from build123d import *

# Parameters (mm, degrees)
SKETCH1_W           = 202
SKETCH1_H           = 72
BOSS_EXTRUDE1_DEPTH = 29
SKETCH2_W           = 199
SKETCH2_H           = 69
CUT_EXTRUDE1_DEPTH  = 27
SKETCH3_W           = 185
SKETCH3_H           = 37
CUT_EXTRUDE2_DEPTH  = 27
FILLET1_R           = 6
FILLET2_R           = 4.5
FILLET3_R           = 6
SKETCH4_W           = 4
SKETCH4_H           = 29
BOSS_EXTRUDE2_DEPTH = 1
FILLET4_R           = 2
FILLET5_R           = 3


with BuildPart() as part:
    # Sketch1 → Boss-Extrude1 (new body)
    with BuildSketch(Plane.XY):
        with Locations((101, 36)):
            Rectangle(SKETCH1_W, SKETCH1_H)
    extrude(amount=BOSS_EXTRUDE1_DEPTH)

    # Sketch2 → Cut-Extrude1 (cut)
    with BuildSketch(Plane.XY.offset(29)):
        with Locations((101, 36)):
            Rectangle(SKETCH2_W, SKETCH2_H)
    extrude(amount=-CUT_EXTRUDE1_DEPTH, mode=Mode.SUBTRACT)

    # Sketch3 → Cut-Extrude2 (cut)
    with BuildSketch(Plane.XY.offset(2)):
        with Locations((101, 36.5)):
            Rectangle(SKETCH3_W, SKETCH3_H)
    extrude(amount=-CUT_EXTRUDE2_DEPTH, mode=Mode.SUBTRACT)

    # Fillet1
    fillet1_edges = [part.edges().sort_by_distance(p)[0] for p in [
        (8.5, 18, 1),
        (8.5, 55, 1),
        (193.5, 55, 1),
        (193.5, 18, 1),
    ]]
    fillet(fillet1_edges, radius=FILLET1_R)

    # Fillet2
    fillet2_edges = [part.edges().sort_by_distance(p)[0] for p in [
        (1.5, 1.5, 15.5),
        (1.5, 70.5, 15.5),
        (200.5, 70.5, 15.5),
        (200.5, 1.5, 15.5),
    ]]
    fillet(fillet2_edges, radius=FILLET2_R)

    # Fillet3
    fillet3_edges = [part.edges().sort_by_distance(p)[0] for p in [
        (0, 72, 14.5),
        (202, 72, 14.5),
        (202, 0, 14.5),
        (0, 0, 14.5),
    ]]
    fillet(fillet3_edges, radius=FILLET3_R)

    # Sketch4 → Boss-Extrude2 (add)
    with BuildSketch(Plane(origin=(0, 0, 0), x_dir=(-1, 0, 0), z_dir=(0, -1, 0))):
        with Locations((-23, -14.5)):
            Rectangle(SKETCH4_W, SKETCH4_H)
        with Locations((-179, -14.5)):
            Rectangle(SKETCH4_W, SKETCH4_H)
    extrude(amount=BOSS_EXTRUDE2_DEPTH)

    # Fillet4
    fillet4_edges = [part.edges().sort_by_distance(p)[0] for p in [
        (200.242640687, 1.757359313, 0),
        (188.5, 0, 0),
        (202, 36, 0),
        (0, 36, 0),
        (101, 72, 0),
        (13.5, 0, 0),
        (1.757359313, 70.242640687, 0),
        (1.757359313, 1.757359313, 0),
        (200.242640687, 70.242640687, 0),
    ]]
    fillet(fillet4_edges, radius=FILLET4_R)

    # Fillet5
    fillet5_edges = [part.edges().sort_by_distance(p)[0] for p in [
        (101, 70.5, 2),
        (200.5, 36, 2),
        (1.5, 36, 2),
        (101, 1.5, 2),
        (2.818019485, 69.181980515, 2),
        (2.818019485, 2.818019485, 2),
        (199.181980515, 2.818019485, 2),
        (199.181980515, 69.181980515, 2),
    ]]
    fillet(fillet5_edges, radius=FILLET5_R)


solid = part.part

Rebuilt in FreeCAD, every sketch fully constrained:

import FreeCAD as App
import Part
import Sketcher
from FreeCAD import Vector
Q = App.Units.Quantity


def edges_at(feature, points):
    """Names of the edges that pass closest to the given points."""
    edges = feature.Shape.Edges
    near = lambda p: min(range(len(edges)), key=lambda i: edges[i].distToShape(Part.Vertex(*p))[0])
    return sorted({f"Edge{near(p) + 1}" for p in points})

doc = App.newDocument("Part")
body = doc.addObject("PartDesign::Body", "Body")

sketch1 = doc.addObject("Sketcher::SketchObject", "Sketch")
body.addObject(sketch1)
sketch1.AttachmentSupport = (doc.XY_Plane, [""])
sketch1.MapMode = "FlatFace"
sketch1.addGeometry(Part.LineSegment(Vector(0, 72, 0), Vector(0, 0, 0)), False)
sketch1.addGeometry(Part.LineSegment(Vector(0, 0, 0), Vector(202, 0, 0)), False)
sketch1.addGeometry(Part.LineSegment(Vector(202, 0, 0), Vector(202, 72, 0)), False)
sketch1.addGeometry(Part.LineSegment(Vector(202, 72, 0), Vector(0, 72, 0)), False)
sketch1.addConstraint(Sketcher.Constraint("Coincident", 0, 2, 1, 1))
sketch1.addConstraint(Sketcher.Constraint("Coincident", 1, 2, 2, 1))
sketch1.addConstraint(Sketcher.Constraint("Coincident", 2, 2, 3, 1))
sketch1.addConstraint(Sketcher.Constraint("Coincident", 3, 2, 0, 1))
sketch1.addConstraint(Sketcher.Constraint("Vertical", 0))
sketch1.addConstraint(Sketcher.Constraint("Horizontal", 1))
sketch1.addConstraint(Sketcher.Constraint("Vertical", 2))
sketch1.addConstraint(Sketcher.Constraint("Horizontal", 3))
sketch1.addConstraint(Sketcher.Constraint("Coincident", 0, 2, -1, 1))
sketch1.addConstraint(Sketcher.Constraint("DistanceX", 1, 1, 1, 2, Q("202 mm")))
sketch1.addConstraint(Sketcher.Constraint("DistanceY", 0, 2, 0, 1, Q("72 mm")))
pad1 = doc.addObject("PartDesign::Pad", "Pad")
body.addObject(pad1)
pad1.Profile = sketch1
pad1.Length = 29

sketch2 = doc.addObject("Sketcher::SketchObject", "Sketch001")
body.addObject(sketch2)
sketch2.AttachmentSupport = (doc.XY_Plane, [""])
sketch2.MapMode = "FlatFace"
sketch2.AttachmentOffset = App.Placement(Vector(0, 0, 29), App.Rotation())
sketch2.addGeometry(Part.LineSegment(Vector(1.5, 70.5, 0), Vector(1.5, 1.5, 0)), False)
sketch2.addGeometry(Part.LineSegment(Vector(1.5, 1.5, 0), Vector(200.5, 1.5, 0)), False)
sketch2.addGeometry(Part.LineSegment(Vector(200.5, 1.5, 0), Vector(200.5, 70.5, 0)), False)
sketch2.addGeometry(Part.LineSegment(Vector(200.5, 70.5, 0), Vector(1.5, 70.5, 0)), False)
sketch2.addConstraint(Sketcher.Constraint("Coincident", 0, 2, 1, 1))
sketch2.addConstraint(Sketcher.Constraint("Coincident", 1, 2, 2, 1))
sketch2.addConstraint(Sketcher.Constraint("Coincident", 2, 2, 3, 1))
sketch2.addConstraint(Sketcher.Constraint("Coincident", 3, 2, 0, 1))
sketch2.addConstraint(Sketcher.Constraint("Vertical", 0))
sketch2.addConstraint(Sketcher.Constraint("Horizontal", 1))
sketch2.addConstraint(Sketcher.Constraint("Vertical", 2))
sketch2.addConstraint(Sketcher.Constraint("Horizontal", 3))
sketch2.addConstraint(Sketcher.Constraint("DistanceX", 1, 1, 1, 2, Q("199 mm")))
sketch2.addConstraint(Sketcher.Constraint("DistanceY", 0, 2, 0, 1, Q("69 mm")))
sketch2.addConstraint(Sketcher.Constraint("DistanceX", -1, 1, 0, 2, Q("1.5 mm")))
sketch2.addConstraint(Sketcher.Constraint("DistanceY", -1, 1, 0, 2, Q("1.5 mm")))
pocket1 = doc.addObject("PartDesign::Pocket", "Pocket")
body.addObject(pocket1)
pocket1.Profile = sketch2
pocket1.Length = 27

sketch3 = doc.addObject("Sketcher::SketchObject", "Sketch002")
body.addObject(sketch3)
sketch3.AttachmentSupport = (doc.XY_Plane, [""])
sketch3.MapMode = "FlatFace"
sketch3.AttachmentOffset = App.Placement(Vector(0, 0, 2), App.Rotation())
sketch3.addGeometry(Part.LineSegment(Vector(8.5, 55, 0), Vector(8.5, 18, 0)), False)
sketch3.addGeometry(Part.LineSegment(Vector(8.5, 18, 0), Vector(193.5, 18, 0)), False)
sketch3.addGeometry(Part.LineSegment(Vector(193.5, 18, 0), Vector(193.5, 55, 0)), False)
sketch3.addGeometry(Part.LineSegment(Vector(193.5, 55, 0), Vector(8.5, 55, 0)), False)
sketch3.addConstraint(Sketcher.Constraint("Coincident", 0, 2, 1, 1))
sketch3.addConstraint(Sketcher.Constraint("Coincident", 1, 2, 2, 1))
sketch3.addConstraint(Sketcher.Constraint("Coincident", 2, 2, 3, 1))
sketch3.addConstraint(Sketcher.Constraint("Coincident", 3, 2, 0, 1))
sketch3.addConstraint(Sketcher.Constraint("Vertical", 0))
sketch3.addConstraint(Sketcher.Constraint("Horizontal", 1))
sketch3.addConstraint(Sketcher.Constraint("Vertical", 2))
sketch3.addConstraint(Sketcher.Constraint("Horizontal", 3))
sketch3.addConstraint(Sketcher.Constraint("DistanceX", 1, 1, 1, 2, Q("185 mm")))
sketch3.addConstraint(Sketcher.Constraint("DistanceY", 0, 2, 0, 1, Q("37 mm")))
sketch3.addConstraint(Sketcher.Constraint("DistanceY", -1, 1, 0, 2, Q("18 mm")))
sketch3.addConstraint(Sketcher.Constraint("DistanceX", -1, 1, 0, 2, Q("8.5 mm")))
pocket2 = doc.addObject("PartDesign::Pocket", "Pocket001")
body.addObject(pocket2)
pocket2.Profile = sketch3
pocket2.Length = 27
doc.recompute()

fillet = doc.addObject("PartDesign::Fillet", "Fillet")
body.addObject(fillet)
fillet.Base = (pocket2, edges_at(pocket2, [
    (8.5, 18, 1),
    (8.5, 55, 1),
    (193.5, 55, 1),
    (193.5, 18, 1),
]))
fillet.Radius = 6
doc.recompute()

fillet2 = doc.addObject("PartDesign::Fillet", "Fillet001")
body.addObject(fillet2)
fillet2.Base = (fillet, edges_at(fillet, [
    (1.5, 1.5, 15.5),
    (1.5, 70.5, 15.5),
    (200.5, 70.5, 15.5),
    (200.5, 1.5, 15.5),
]))
fillet2.Radius = 4.5
doc.recompute()

fillet3 = doc.addObject("PartDesign::Fillet", "Fillet002")
body.addObject(fillet3)
fillet3.Base = (fillet2, edges_at(fillet2, [
    (0, 72, 14.5),
    (202, 72, 14.5),
    (202, 0, 14.5),
    (0, 0, 14.5),
]))
fillet3.Radius = 6

sketch4 = doc.addObject("Sketcher::SketchObject", "Sketch003")
body.addObject(sketch4)
sketch4.AttachmentSupport = (doc.XZ_Plane, [""])
sketch4.MapMode = "FlatFace"
sketch4.addGeometry(Part.LineSegment(Vector(25, 0, 0), Vector(25, 29, 0)), False)
sketch4.addGeometry(Part.LineSegment(Vector(25, 29, 0), Vector(21, 29, 0)), False)
sketch4.addGeometry(Part.LineSegment(Vector(21, 29, 0), Vector(21, 0, 0)), False)
sketch4.addGeometry(Part.LineSegment(Vector(21, 0, 0), Vector(25, 0, 0)), False)
sketch4.addGeometry(Part.LineSegment(Vector(181, 0, 0), Vector(181, 29, 0)), False)
sketch4.addGeometry(Part.LineSegment(Vector(181, 29, 0), Vector(177, 29, 0)), False)
sketch4.addGeometry(Part.LineSegment(Vector(177, 29, 0), Vector(177, 0, 0)), False)
sketch4.addGeometry(Part.LineSegment(Vector(177, 0, 0), Vector(181, 0, 0)), False)
sketch4.addConstraint(Sketcher.Constraint("Coincident", 0, 2, 1, 1))
sketch4.addConstraint(Sketcher.Constraint("Coincident", 1, 2, 2, 1))
sketch4.addConstraint(Sketcher.Constraint("Coincident", 2, 2, 3, 1))
sketch4.addConstraint(Sketcher.Constraint("Coincident", 3, 2, 0, 1))
sketch4.addConstraint(Sketcher.Constraint("Coincident", 4, 2, 5, 1))
sketch4.addConstraint(Sketcher.Constraint("Coincident", 5, 2, 6, 1))
sketch4.addConstraint(Sketcher.Constraint("Coincident", 6, 2, 7, 1))
sketch4.addConstraint(Sketcher.Constraint("Coincident", 7, 2, 4, 1))
sketch4.addConstraint(Sketcher.Constraint("Vertical", 0))
sketch4.addConstraint(Sketcher.Constraint("Horizontal", 1))
sketch4.addConstraint(Sketcher.Constraint("Vertical", 2))
sketch4.addConstraint(Sketcher.Constraint("Horizontal", 3))
sketch4.addConstraint(Sketcher.Constraint("Vertical", 4))
sketch4.addConstraint(Sketcher.Constraint("Horizontal", 5))
sketch4.addConstraint(Sketcher.Constraint("Vertical", 6))
sketch4.addConstraint(Sketcher.Constraint("Horizontal", 7))
sketch4.addConstraint(Sketcher.Constraint("PointOnObject", 2, 2, -1))
sketch4.addConstraint(Sketcher.Constraint("PointOnObject", 6, 2, -1))
sketch4.addConstraint(Sketcher.Constraint("Horizontal", 1, 2, 4, 2))
sketch4.addConstraint(Sketcher.Constraint("Equal", 3, 5))
sketch4.addConstraint(Sketcher.Constraint("DistanceX", 1, 2, 1, 1, Q("4 mm")))
sketch4.addConstraint(Sketcher.Constraint("DistanceY", 0, 1, 0, 2, Q("29 mm")))
sketch4.addConstraint(Sketcher.Constraint("DistanceX", -1, 1, 0, 2, Q("25 mm")))
sketch4.addConstraint(Sketcher.Constraint("DistanceX", -1, 1, 4, 2, Q("181 mm")))
pad2 = doc.addObject("PartDesign::Pad", "Pad001")
body.addObject(pad2)
pad2.Profile = sketch4
pad2.Length = 1
doc.recompute()

fillet4 = doc.addObject("PartDesign::Fillet", "Fillet003")
body.addObject(fillet4)
fillet4.Base = (pad2, edges_at(pad2, [
    (200.243, 1.757, 0),
    (188.5, 0, 0),
    (202, 36, 0),
    (0, 36, 0),
    (101, 72, 0),
    (13.5, 0, 0),
    (1.757, 70.243, 0),
    (1.757, 1.757, 0),
    (200.243, 70.243, 0),
]))
fillet4.Radius = 2
doc.recompute()

fillet5 = doc.addObject("PartDesign::Fillet", "Fillet004")
body.addObject(fillet5)
fillet5.Base = (fillet4, edges_at(fillet4, [
    (101, 70.5, 2),
    (200.5, 36, 2),
    (1.5, 36, 2),
    (101, 1.5, 2),
    (2.818, 69.182, 2),
    (2.818, 2.818, 2),
    (199.182, 2.818, 2),
    (199.182, 69.182, 2),
]))
fillet5.Radius = 3

doc.recompute()
